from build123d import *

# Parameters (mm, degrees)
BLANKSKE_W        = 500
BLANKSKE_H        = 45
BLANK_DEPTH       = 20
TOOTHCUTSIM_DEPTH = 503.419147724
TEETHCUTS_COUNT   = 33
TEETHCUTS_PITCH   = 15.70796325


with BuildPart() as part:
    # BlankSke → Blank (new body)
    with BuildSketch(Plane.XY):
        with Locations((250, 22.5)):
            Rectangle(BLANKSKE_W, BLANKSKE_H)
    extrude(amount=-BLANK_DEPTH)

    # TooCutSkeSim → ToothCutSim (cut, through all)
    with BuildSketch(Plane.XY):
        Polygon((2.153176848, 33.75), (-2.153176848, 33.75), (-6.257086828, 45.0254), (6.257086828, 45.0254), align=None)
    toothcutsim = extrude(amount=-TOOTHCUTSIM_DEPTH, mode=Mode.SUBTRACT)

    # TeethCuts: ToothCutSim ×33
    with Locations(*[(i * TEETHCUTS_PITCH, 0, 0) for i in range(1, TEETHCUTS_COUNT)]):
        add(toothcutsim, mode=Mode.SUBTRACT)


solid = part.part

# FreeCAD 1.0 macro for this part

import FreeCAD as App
import Part
import Sketcher
Q = App.Units.Quantity


def add_polygon(sketch, points):
    """Adds a closed chain of lines whose ends are joined by coincident constraints."""
    first, n = sketch.GeometryCount, len(points)
    for a, b in zip(points, points[1:] + points[:1]):
        sketch.addGeometry(Part.LineSegment(App.Vector(*a, 0), App.Vector(*b, 0)), False)
    for i in range(n):
        sketch.addConstraint(Sketcher.Constraint("Coincident", first + i, 2, first + (i + 1) % n, 1))

doc = App.newDocument("Part")
body = doc.addObject("PartDesign::Body", "Body")

# Sketch on XY plane
sketch1 = body.newObject("Sketcher::SketchObject", "Sketch")
sketch1.AttachmentSupport = (doc.getObject("XY_Plane"), [""])
sketch1.MapMode = "FlatFace"
add_polygon(sketch1, [(0, 45), (0, 0), (500, 0), (500, 45)])  # lines 0-3
sketch1.addConstraint(Sketcher.Constraint("Vertical", 0))
sketch1.addConstraint(Sketcher.Constraint("Horizontal", 1))
sketch1.addConstraint(Sketcher.Constraint("Vertical", 2))
sketch1.addConstraint(Sketcher.Constraint("Horizontal", 3))
sketch1.addConstraint(Sketcher.Constraint("Coincident", 0, 2, -1, 1))
sketch1.addConstraint(Sketcher.Constraint("DistanceX", 1, 1, 1, 2, 500.0))
sketch1.addConstraint(Sketcher.Constraint("DistanceY", 0, 2, 0, 1, 45.0))
pad1 = body.newObject("PartDesign::Pad", "Pad")
pad1.Profile = sketch1
pad1.Length = 20
pad1.Reversed = True

# Sketch on XY plane
sketch2 = body.newObject("Sketcher::SketchObject", "Sketch001")
sketch2.AttachmentSupport = (doc.getObject("XY_Plane"), [""])
sketch2.MapMode = "FlatFace"
add_polygon(sketch2, [(-2.2, 33.8), (2.2, 33.8), (6.3, 45), (-6.3, 45)])  # lines 0-3
sketch2.addConstraint(Sketcher.Constraint("Horizontal", 0))
sketch2.addConstraint(Sketcher.Constraint("Horizontal", 2))
sketch2.addConstraint(Sketcher.Constraint("Equal", 1, 3))
sketch2.addConstraint(Sketcher.Constraint("Angle", 1, Q("70 deg")))
sketch2.addConstraint(Sketcher.Constraint("DistanceY", -1, 1, 0, 2, 33.75))
sketch2.addConstraint(Sketcher.Constraint("DistanceY", -1, 1, 1, 2, 45.0254))
sketch2.addConstraint(Sketcher.Constraint("DistanceX", 0, 1, 0, 2, 4.306354))
sketch2.addConstraint(Sketcher.Constraint("DistanceX", -1, 1, 0, 2, 2.153177))
pocket1 = body.newObject("PartDesign::Pocket", "Pocket")
pocket1.Profile = sketch2
pocket1.Type = "ThroughAll"
doc.recompute()

linearpattern = body.newObject("PartDesign::LinearPattern", "LinearPattern")
linearpattern.Originals = [pocket1]
linearpattern.Direction = (doc.getObject("X_Axis"), [""])
linearpattern.Mode = "offset"
linearpattern.Offset = 15.707963
linearpattern.Occurrences = 33
body.Tip = linearpattern

doc.recompute()
